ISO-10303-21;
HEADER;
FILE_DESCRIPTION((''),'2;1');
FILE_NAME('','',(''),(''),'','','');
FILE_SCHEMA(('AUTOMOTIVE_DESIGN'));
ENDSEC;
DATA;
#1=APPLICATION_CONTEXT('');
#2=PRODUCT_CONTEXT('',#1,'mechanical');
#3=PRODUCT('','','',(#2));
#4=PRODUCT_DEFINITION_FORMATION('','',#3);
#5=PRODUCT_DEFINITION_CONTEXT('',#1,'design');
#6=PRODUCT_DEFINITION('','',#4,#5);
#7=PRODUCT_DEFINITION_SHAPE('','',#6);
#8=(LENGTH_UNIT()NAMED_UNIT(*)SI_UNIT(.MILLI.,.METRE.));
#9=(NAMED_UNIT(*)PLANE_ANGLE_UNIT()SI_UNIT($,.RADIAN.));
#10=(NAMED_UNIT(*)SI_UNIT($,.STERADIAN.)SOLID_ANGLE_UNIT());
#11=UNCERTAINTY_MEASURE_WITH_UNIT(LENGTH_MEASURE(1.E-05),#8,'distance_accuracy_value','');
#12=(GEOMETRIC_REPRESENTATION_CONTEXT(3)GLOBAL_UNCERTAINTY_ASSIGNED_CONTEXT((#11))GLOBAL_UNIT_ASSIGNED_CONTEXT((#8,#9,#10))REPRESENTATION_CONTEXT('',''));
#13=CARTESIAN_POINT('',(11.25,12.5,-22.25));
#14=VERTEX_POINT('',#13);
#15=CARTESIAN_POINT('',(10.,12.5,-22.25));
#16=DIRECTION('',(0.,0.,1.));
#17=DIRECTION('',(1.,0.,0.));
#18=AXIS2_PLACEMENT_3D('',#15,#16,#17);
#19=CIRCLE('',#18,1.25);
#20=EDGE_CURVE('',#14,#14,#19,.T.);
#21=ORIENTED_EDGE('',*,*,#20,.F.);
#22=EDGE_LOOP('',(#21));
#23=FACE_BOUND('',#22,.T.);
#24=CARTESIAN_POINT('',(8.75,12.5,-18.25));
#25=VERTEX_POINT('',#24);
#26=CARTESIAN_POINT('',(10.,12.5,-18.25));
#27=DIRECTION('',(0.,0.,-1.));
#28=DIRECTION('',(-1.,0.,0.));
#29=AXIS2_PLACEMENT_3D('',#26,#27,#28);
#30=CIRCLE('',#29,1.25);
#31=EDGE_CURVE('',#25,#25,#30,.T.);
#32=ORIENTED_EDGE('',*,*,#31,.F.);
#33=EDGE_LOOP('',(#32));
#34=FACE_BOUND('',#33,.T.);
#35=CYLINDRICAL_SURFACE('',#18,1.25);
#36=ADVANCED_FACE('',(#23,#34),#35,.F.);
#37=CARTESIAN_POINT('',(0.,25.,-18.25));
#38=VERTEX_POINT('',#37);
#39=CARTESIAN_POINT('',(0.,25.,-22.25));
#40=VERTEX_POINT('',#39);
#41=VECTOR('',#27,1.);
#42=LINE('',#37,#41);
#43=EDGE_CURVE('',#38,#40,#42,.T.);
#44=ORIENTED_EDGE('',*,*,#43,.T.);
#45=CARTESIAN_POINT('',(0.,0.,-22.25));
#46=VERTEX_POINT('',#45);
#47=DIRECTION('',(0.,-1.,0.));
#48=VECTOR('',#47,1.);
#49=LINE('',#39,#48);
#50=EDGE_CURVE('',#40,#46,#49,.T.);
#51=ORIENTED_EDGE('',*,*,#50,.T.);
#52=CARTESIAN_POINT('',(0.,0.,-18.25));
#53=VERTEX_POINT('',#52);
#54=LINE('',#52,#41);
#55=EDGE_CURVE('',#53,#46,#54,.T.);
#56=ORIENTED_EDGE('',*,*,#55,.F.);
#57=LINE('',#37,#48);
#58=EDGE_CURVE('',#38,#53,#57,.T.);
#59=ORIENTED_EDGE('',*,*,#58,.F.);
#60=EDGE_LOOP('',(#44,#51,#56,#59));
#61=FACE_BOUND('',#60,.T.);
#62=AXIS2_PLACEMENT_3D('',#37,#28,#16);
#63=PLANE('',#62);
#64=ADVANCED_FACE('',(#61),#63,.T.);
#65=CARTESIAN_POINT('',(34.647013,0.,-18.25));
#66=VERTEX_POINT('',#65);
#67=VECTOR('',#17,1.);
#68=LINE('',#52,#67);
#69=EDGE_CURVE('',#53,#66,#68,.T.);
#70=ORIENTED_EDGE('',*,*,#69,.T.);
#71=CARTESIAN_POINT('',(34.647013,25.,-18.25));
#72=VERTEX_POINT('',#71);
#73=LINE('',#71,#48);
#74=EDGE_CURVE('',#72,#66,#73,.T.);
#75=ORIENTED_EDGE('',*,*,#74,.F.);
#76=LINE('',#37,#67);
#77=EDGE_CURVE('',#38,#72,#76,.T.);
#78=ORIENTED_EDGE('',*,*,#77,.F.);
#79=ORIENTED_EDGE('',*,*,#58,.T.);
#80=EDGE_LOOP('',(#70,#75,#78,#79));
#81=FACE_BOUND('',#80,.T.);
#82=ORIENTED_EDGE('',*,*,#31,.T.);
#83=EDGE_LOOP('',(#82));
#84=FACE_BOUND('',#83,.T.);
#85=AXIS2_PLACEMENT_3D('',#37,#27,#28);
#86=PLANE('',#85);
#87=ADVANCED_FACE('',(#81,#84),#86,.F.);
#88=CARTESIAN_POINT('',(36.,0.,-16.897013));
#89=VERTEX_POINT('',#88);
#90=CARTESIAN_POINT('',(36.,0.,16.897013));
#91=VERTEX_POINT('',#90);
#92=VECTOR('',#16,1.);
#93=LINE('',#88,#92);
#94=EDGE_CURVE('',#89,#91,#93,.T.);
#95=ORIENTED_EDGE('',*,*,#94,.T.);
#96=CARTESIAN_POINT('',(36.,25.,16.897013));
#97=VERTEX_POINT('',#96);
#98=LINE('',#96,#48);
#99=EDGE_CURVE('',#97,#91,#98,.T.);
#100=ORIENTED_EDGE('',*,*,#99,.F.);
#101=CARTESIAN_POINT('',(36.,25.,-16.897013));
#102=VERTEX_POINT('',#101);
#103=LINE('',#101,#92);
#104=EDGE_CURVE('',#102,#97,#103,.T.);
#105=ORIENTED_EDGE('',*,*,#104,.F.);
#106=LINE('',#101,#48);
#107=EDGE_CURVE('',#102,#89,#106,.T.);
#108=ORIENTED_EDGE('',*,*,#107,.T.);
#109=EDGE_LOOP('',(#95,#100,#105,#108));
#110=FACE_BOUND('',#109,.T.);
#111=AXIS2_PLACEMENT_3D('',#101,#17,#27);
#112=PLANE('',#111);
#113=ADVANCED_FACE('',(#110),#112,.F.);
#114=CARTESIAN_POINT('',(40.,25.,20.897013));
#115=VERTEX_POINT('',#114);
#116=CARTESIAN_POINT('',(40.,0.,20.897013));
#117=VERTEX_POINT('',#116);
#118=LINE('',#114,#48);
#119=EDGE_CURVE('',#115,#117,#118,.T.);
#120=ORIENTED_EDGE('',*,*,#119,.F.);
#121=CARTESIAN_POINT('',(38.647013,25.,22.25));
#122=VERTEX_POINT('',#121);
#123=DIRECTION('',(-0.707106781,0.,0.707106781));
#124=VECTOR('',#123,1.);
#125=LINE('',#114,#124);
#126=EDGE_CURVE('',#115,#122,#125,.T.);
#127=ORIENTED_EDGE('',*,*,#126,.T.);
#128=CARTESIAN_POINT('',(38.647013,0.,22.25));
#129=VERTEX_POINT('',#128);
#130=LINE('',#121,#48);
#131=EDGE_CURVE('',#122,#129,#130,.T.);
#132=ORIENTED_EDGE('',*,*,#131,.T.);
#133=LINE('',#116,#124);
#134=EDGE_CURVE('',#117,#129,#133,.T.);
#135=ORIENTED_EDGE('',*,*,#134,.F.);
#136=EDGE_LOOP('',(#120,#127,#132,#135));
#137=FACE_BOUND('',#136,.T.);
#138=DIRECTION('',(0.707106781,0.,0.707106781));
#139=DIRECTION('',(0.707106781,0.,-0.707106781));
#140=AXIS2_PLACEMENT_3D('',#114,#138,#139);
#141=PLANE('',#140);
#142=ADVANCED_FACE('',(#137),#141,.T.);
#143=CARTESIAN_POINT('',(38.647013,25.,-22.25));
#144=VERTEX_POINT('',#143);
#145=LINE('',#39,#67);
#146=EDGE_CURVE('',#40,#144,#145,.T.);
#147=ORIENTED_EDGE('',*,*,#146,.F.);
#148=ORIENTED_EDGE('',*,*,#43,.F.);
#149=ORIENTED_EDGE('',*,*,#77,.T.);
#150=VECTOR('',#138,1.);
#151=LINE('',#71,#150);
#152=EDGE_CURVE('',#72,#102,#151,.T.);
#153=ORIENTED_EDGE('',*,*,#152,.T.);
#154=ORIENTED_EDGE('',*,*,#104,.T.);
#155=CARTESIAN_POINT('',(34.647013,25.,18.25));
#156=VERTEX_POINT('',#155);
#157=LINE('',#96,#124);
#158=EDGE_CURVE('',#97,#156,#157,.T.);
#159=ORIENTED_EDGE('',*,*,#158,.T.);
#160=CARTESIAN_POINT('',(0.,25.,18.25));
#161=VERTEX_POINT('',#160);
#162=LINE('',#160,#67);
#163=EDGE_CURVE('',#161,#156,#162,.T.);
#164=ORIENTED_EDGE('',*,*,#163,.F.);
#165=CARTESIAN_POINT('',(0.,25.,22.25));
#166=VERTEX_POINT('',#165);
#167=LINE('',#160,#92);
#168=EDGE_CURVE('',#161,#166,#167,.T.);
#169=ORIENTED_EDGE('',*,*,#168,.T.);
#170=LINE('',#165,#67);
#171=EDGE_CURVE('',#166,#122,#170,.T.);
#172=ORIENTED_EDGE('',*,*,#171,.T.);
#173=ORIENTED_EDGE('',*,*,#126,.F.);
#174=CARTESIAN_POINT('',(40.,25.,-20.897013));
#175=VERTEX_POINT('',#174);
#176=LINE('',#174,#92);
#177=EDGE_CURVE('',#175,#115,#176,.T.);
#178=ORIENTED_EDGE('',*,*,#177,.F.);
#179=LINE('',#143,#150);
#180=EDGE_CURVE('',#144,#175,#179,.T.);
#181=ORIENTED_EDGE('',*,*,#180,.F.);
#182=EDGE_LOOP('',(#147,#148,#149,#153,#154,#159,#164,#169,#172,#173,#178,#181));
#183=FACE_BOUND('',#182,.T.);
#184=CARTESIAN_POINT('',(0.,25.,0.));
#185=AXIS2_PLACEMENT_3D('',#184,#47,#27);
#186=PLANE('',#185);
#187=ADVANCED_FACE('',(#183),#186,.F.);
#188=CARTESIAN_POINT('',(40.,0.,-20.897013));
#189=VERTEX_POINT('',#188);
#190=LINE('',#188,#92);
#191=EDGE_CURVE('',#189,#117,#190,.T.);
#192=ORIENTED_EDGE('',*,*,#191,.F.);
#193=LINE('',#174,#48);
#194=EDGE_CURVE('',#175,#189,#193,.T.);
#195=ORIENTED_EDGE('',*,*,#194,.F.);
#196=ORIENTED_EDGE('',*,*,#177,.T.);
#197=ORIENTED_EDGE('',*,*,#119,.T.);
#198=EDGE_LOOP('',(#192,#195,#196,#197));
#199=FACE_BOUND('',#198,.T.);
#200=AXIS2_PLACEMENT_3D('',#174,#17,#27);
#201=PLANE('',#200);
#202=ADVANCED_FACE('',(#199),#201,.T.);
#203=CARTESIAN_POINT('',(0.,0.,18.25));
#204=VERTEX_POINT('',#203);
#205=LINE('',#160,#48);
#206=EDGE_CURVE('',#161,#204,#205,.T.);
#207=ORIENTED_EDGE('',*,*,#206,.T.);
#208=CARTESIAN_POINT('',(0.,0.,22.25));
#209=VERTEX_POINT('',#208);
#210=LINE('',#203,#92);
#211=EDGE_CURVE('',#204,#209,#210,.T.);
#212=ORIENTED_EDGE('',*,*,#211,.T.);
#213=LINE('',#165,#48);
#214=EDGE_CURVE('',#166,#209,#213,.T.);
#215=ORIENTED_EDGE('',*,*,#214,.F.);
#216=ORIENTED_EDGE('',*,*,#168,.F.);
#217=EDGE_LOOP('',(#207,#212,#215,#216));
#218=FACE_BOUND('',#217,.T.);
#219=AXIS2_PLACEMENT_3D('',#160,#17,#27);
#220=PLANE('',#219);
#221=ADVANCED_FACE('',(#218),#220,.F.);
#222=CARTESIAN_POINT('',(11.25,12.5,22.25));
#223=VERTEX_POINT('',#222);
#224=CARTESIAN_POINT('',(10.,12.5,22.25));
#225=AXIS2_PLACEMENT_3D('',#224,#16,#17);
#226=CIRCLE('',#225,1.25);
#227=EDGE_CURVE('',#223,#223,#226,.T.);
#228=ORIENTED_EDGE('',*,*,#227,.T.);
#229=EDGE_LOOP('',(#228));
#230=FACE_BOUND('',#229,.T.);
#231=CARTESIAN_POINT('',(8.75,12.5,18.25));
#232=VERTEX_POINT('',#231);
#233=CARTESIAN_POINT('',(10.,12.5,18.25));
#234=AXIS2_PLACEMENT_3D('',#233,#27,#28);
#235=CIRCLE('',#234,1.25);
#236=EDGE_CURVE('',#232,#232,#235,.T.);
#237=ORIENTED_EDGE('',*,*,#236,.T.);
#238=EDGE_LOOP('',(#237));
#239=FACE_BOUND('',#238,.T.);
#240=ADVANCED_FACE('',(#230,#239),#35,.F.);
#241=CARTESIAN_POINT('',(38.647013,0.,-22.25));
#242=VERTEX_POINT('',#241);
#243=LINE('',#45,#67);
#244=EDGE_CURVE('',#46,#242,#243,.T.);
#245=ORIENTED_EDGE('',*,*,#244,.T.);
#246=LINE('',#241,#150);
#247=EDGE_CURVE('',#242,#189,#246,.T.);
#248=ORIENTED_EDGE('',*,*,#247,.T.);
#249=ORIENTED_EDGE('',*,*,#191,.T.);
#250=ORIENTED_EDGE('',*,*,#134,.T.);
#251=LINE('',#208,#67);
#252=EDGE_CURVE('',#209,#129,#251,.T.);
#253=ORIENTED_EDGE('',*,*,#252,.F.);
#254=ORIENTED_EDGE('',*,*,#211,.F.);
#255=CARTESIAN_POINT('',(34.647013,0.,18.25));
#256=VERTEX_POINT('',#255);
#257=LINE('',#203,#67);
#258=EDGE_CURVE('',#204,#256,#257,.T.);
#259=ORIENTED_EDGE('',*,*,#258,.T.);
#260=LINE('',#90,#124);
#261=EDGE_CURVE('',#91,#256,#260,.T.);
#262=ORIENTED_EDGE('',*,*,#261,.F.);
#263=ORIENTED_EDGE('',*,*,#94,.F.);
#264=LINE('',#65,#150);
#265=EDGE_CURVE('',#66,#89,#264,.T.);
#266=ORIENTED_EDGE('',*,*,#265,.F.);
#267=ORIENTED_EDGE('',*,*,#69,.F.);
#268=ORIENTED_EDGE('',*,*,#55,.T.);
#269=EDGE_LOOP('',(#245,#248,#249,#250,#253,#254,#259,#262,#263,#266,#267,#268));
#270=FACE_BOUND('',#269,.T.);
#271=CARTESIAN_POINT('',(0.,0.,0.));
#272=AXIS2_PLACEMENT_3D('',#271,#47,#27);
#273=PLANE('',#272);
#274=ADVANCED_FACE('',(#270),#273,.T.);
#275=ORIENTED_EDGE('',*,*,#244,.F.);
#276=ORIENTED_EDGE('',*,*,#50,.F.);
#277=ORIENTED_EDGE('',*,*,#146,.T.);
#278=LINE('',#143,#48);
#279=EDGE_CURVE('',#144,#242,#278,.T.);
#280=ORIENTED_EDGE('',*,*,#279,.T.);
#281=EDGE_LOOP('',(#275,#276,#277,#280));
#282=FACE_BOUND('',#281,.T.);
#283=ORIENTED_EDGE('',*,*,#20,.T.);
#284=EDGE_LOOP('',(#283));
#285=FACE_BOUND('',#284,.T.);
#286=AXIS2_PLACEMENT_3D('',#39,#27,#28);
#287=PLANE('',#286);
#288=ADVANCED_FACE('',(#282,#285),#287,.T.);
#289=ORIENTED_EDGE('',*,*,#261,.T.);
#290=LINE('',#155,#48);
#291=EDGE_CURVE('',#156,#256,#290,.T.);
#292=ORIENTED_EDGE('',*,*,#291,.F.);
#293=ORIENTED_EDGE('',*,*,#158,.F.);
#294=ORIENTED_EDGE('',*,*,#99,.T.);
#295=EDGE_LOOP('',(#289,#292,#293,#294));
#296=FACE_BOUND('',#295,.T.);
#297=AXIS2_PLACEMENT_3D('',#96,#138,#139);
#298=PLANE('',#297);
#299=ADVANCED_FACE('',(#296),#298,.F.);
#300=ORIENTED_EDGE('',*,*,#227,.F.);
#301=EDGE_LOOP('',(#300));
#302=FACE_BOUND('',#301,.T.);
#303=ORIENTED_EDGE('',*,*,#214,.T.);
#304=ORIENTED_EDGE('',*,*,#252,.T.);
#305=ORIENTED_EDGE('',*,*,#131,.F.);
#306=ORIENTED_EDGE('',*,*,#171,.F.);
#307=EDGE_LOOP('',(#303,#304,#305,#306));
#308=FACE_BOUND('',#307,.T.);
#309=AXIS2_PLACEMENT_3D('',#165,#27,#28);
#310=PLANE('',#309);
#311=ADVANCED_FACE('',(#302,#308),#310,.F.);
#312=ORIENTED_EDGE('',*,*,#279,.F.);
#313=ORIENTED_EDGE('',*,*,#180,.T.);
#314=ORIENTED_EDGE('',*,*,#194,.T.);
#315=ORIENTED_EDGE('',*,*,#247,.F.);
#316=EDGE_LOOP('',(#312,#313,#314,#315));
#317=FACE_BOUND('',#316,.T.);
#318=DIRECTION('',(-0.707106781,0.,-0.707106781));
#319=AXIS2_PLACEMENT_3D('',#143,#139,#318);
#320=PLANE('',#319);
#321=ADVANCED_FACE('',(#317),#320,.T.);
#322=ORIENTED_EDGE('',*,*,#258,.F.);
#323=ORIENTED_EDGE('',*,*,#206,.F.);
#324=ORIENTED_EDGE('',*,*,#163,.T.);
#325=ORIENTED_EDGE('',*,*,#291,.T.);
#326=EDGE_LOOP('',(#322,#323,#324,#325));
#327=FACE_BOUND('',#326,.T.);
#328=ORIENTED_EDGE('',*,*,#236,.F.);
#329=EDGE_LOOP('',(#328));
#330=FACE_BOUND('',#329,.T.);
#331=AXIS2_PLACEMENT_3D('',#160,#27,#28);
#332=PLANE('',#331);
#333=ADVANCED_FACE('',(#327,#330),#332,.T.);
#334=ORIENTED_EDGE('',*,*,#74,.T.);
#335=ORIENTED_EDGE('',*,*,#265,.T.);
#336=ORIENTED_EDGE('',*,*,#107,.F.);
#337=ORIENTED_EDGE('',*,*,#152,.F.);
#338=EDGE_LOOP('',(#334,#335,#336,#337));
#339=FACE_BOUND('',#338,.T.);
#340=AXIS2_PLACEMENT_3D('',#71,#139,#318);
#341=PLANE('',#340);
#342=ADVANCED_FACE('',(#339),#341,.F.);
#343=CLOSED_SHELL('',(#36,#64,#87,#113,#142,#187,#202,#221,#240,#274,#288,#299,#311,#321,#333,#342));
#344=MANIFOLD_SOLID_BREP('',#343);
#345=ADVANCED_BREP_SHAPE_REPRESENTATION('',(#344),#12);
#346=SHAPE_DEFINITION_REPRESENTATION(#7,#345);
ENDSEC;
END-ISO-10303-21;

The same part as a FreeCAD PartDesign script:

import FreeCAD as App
import Part
import Sketcher
from FreeCAD import Vector
Q = App.Units.Quantity


def add_polygon(sketch, points):
    """Adds a closed chain of lines whose ends are joined by coincident constraints."""
    first, n = sketch.GeometryCount, len(points)
    for a, b in zip(points, points[1:] + points[:1]):
        sketch.addGeometry(Part.LineSegment(App.Vector(*a, 0), App.Vector(*b, 0)), False)
    for i in range(n):
        sketch.addConstraint(Sketcher.Constraint("Coincident", first + i, 2, first + (i + 1) % n, 1))

doc = App.newDocument("Part")
body = doc.addObject("PartDesign::Body", "Body")

# Sketch on XZ plane
sketch1 = doc.addObject("Sketcher::SketchObject", "Sketch")
body.addObject(sketch1)
sketch1.AttachmentSupport = (doc.XZ_Plane, [""])
sketch1.MapMode = "FlatFace"
add_polygon(sketch1, [(0, -22.25), (0, -18.25), (34.647013, -18.25), (36, -16.897013), (36, 16.897013), (34.647013, 18.25), (0, 18.25), (0, 22.25), (38.647013, 22.25), (40, 20.897013), (40, -20.897013), (38.647013, -22.25)])  # lines 0-11
sketch1.addConstraint([
    Sketcher.Constraint("Vertical", 0),
    Sketcher.Constraint("Horizontal", 1),
    Sketcher.Constraint("Vertical", 3),
    Sketcher.Constraint("Horizontal", 5),
    Sketcher.Constraint("Vertical", 6),
    Sketcher.Constraint("Horizontal", 7),
    Sketcher.Constraint("Vertical", 9),
    Sketcher.Constraint("Horizontal", 11),
    Sketcher.Constraint("Symmetric", 0, 2, 5, 2, -1, 1),
    Sketcher.Constraint("Symmetric", 7, 2, 10, 2, -1),
    Sketcher.Constraint("PointOnObject", 0, 2, -2),
    Sketcher.Constraint("Perpendicular", 2, 4),
    Sketcher.Constraint("Parallel", 4, 8),
    Sketcher.Constraint("Perpendicular", 8, 10),
    Sketcher.Constraint("Vertical", 1, 2, 4, 2),
    Sketcher.Constraint("Equal", 2, 4),
    Sketcher.Constraint("Equal", 4, 8),
    Sketcher.Constraint("DistanceY", 0, 1, 0, 2, Q("4 mm")),
    Sketcher.Constraint("DistanceX", -1, 1, 2, 2, Q("36 mm")),
    Sketcher.Constraint("DistanceX", -1, 1, 8, 2, Q("40 mm")),
    Sketcher.Constraint("DistanceY", 1, 2, 4, 2, Q("36.5 mm")),
    Sketcher.Constraint("DistanceX", 1, 1, 1, 2, Q("34.647013 mm")),
])
pad1 = doc.addObject("PartDesign::Pad", "Pad")
body.addObject(pad1)
pad1.Profile = sketch1
pad1.Length = 25
pad1.Reversed = True

# Sketch on XY plane
sketch2 = doc.addObject("Sketcher::SketchObject", "Sketch001")
body.addObject(sketch2)
sketch2.AttachmentSupport = (doc.XY_Plane, [""])
sketch2.MapMode = "FlatFace"
sketch2.AttachmentOffset = App.Placement(Vector(0, 0, 22.25), App.Rotation())
sketch2.addGeometry(Part.Circle(Vector(10, 12.5, 0), Vector(0, 0, 1), 1.25), False)
sketch2.addConstraint([
    Sketcher.Constraint("Diameter", 0, Q("2.5 mm")),
    Sketcher.Constraint("DistanceX", -1, 1, 0, 3, Q("10 mm")),
    Sketcher.Constraint("DistanceY", -1, 1, 0, 3, Q("12.5 mm")),
])
pocket1 = doc.addObject("PartDesign::Pocket", "Pocket")
body.addObject(pocket1)
pocket1.Profile = sketch2
pocket1.Type = "ThroughAll"

doc.recompute()
